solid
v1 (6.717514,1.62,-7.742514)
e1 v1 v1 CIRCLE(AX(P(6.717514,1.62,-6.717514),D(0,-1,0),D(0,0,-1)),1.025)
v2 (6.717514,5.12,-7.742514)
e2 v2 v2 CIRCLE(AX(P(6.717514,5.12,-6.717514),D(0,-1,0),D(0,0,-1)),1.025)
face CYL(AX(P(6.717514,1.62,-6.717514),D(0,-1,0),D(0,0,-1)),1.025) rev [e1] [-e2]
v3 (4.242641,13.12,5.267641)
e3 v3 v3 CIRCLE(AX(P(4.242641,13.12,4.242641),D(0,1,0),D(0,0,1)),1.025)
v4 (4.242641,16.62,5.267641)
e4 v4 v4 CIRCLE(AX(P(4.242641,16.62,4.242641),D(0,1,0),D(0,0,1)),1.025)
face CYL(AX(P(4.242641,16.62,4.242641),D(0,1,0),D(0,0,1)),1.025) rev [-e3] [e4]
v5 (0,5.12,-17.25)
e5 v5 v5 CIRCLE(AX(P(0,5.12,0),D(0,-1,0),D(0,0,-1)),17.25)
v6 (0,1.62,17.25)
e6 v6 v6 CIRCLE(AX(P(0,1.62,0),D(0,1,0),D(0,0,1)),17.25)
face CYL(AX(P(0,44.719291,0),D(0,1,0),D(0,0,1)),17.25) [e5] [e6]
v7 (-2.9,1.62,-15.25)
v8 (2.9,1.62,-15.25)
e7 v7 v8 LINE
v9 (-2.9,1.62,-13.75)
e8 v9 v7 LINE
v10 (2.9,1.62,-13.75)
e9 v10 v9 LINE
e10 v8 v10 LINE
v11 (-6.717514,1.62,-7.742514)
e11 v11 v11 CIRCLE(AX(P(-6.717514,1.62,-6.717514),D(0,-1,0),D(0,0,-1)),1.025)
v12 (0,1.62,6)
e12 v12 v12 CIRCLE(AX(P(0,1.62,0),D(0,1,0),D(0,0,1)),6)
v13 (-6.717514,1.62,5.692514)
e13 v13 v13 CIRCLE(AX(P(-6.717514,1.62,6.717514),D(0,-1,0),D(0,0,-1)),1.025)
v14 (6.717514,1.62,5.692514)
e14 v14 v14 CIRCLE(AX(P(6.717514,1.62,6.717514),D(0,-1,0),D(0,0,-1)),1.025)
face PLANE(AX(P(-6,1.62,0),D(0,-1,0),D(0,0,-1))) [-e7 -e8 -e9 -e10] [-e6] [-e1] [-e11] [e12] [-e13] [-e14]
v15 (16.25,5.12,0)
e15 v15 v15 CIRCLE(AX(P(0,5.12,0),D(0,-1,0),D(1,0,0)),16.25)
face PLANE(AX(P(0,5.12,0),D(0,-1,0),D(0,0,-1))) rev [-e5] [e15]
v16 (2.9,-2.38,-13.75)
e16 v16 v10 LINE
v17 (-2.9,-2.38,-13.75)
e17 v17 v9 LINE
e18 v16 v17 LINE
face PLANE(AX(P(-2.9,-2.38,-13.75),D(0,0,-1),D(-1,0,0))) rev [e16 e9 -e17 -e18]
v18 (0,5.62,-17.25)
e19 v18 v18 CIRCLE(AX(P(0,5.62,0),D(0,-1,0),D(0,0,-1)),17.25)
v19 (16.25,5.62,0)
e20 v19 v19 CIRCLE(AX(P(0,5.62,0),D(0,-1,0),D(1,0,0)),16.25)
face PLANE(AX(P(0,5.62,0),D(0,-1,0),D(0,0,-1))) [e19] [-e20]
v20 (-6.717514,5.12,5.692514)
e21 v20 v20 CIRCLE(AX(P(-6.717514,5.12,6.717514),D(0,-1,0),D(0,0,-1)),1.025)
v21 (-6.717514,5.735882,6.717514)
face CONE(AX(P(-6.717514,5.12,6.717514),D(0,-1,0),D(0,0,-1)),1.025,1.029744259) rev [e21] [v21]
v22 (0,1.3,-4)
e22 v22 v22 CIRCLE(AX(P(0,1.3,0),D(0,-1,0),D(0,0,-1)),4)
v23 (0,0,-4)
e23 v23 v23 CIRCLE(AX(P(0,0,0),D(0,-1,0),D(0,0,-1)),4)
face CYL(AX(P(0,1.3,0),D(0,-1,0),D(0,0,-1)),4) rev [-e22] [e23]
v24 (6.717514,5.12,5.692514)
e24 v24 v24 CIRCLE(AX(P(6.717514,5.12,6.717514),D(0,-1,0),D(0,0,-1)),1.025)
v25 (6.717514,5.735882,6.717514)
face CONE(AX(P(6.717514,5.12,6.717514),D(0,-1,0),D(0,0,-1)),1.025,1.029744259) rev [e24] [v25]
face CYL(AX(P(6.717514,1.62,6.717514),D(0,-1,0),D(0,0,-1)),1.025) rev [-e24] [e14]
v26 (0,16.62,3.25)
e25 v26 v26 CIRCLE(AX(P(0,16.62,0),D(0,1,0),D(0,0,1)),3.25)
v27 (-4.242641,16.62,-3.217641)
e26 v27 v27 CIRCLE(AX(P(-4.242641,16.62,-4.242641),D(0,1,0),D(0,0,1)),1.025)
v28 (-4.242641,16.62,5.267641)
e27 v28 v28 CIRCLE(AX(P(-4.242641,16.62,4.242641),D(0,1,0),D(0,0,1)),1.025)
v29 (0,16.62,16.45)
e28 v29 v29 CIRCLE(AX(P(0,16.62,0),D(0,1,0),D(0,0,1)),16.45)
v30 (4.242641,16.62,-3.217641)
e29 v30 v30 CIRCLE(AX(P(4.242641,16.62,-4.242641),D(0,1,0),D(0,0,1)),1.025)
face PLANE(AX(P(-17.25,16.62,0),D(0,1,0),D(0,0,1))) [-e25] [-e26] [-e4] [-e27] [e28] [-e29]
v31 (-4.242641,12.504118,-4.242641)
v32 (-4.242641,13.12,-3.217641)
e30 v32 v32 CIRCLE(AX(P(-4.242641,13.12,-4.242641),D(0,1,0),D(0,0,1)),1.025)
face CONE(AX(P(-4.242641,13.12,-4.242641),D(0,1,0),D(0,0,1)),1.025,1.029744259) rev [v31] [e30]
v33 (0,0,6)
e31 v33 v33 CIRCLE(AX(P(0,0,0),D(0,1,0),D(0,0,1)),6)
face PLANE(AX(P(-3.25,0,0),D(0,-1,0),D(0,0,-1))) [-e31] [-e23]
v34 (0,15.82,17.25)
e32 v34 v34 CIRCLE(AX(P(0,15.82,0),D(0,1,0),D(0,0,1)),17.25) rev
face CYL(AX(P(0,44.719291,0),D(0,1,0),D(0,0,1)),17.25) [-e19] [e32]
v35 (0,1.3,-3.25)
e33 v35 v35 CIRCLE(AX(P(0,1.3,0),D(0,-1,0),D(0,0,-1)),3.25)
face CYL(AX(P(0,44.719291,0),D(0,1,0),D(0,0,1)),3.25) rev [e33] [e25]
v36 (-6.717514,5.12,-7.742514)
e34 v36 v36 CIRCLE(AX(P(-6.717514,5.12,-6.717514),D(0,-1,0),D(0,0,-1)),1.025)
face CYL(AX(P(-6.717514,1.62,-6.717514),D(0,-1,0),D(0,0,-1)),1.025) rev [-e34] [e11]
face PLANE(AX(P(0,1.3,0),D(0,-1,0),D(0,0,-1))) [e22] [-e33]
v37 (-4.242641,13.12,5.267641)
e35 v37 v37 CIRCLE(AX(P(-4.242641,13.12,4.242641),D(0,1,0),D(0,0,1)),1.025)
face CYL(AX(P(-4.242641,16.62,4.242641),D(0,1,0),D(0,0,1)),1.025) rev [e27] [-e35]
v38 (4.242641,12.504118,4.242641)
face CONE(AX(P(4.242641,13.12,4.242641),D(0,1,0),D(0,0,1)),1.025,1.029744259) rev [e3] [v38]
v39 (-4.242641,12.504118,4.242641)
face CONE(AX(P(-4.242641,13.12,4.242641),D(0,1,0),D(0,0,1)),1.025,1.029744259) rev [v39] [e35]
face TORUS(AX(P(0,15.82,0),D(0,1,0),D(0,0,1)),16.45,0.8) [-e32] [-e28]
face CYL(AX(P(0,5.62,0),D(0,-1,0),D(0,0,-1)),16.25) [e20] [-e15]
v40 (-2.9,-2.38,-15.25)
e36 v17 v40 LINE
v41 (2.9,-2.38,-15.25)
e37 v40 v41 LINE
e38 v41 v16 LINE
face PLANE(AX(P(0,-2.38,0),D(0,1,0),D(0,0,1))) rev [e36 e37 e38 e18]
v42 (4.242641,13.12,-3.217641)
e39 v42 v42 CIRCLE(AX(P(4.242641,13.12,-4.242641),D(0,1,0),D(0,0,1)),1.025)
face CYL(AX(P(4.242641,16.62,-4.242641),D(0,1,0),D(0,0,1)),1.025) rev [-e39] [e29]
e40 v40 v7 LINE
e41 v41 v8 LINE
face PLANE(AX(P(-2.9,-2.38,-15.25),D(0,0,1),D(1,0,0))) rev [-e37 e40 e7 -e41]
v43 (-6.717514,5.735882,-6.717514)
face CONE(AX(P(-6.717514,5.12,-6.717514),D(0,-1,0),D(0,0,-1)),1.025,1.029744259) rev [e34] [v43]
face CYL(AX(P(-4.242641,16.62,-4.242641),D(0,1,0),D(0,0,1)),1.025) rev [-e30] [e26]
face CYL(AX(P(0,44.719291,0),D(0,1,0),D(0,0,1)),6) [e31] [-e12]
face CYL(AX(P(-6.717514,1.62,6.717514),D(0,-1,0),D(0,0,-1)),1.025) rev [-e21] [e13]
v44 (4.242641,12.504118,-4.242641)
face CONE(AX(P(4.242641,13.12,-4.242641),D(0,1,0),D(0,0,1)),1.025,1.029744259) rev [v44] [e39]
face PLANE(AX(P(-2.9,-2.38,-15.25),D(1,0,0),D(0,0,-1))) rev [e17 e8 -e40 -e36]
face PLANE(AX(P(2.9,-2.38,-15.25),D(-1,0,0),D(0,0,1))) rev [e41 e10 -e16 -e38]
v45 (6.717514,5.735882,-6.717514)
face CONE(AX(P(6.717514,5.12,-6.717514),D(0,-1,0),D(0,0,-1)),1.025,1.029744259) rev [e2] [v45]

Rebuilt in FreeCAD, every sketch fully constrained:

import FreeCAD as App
import Part
import Sketcher
from FreeCAD import Vector


def edges_at(feature, points):
    """Names of the edges that pass closest to the given points."""
    edges = feature.Shape.Edges
    near = lambda p: min(range(len(edges)), key=lambda i: edges[i].distToShape(Part.Vertex(*p))[0])
    return sorted({f"Edge{near(p) + 1}" for p in points})


def add_polygon(sketch, points):
    """Adds a closed chain of lines whose ends are joined by coincident constraints."""
    first, n = sketch.GeometryCount, len(points)
    for a, b in zip(points, points[1:] + points[:1]):
        sketch.addGeometry(Part.LineSegment(App.Vector(*a, 0), App.Vector(*b, 0)), False)
    for i in range(n):
        sketch.addConstraint(Sketcher.Constraint("Coincident", first + i, 2, first + (i + 1) % n, 1))

doc = App.newDocument("Part")
body = doc.addObject("PartDesign::Body", "Body")

# Sketch on XY plane
sketch1 = body.newObject("Sketcher::SketchObject", "Sketch")
sketch1.AttachmentSupport = (doc.getObject("XY_Plane"), [""])
sketch1.MapMode = "FlatFace"
add_polygon(sketch1, [(-6, 1.62), (-6, 0), (-3.25, 0), (-3.25, 16.62), (-17.25, 16.62), (-17.25, 1.62)])  # lines 0-5
sketch1.addConstraint([
    Sketcher.Constraint("Vertical", 0),
    Sketcher.Constraint("Horizontal", 1),
    Sketcher.Constraint("Vertical", 2),
    Sketcher.Constraint("Horizontal", 3),
    Sketcher.Constraint("Vertical", 4),
    Sketcher.Constraint("Horizontal", 5),
    Sketcher.Constraint("PointOnObject", 0, 2, -1),
    Sketcher.Constraint("DistanceX", 3, 2, 3, 1, 14.0),
    Sketcher.Constraint("DistanceY", 4, 2, 4, 1, 15.0),
    Sketcher.Constraint("DistanceX", 0, 2, -1, 1, 6.0),
    Sketcher.Constraint("DistanceX", 1, 1, 1, 2, 2.75),
    Sketcher.Constraint("DistanceY", 0, 2, 0, 1, 1.62),
])
revolution = body.newObject("PartDesign::Revolution", "Revolution")
revolution.Profile = sketch1
revolution.ReferenceAxis = (sketch1, ["V_Axis"])
revolution.Angle = 360

# Sketch on XZ plane
sketch2 = body.newObject("Sketcher::SketchObject", "Sketch001")
sketch2.AttachmentSupport = (doc.getObject("XZ_Plane"), [""])
sketch2.MapMode = "FlatFace"
sketch2.AttachmentOffset = App.Placement(Vector(0, 0, -5.12), App.Rotation())
sketch2.addGeometry([
    Part.Circle(Vector(0, 0, 0), Vector(0, 0, 1), 17.25),
    Part.Circle(Vector(0, 0, 0), Vector(0, 0, 1), 16.25),
], False)
sketch2.addConstraint([
    Sketcher.Constraint("Coincident", 0, 3, -1, 1),
    Sketcher.Constraint("Coincident", 1, 3, -1, 1),
    Sketcher.Constraint("Diameter", 0, 34.5),
    Sketcher.Constraint("Diameter", 1, 32.5),
])
pocket1 = body.newObject("PartDesign::Pocket", "Pocket")
pocket1.Profile = sketch2
pocket1.Length = 0.5

# Sketch on XZ plane
sketch3 = body.newObject("Sketcher::SketchObject", "Sketch002")
sketch3.AttachmentSupport = (doc.getObject("XZ_Plane"), [""])
sketch3.MapMode = "FlatFace"
sketch3.AttachmentOffset = App.Placement(Vector(0, 0, -1.62), App.Rotation())
sketch3.addGeometry([
    Part.Circle(Vector(6.717514, -6.717514, 0), Vector(0, 0, 1), 1.025),
    Part.Circle(Vector(6.717514, 6.717514, 0), Vector(0, 0, 1), 1.025),
    Part.Circle(Vector(-6.717514, 6.717514, 0), Vector(0, 0, 1), 1.025),
    Part.Circle(Vector(-6.717514, -6.717514, 0), Vector(0, 0, 1), 1.025),
], False)
sketch3.addConstraint([
    Sketcher.Constraint("Equal", 0, 1),
    Sketcher.Constraint("Equal", 1, 2),
    Sketcher.Constraint("Equal", 2, 3),
    Sketcher.Constraint("Symmetric", 0, 3, 2, 3, -1, 1),
    Sketcher.Constraint("Symmetric", 1, 3, 3, 3, -1, 1),
    Sketcher.Constraint("Symmetric", 1, 3, 2, 3, -2),
    Sketcher.Constraint("Diameter", 0, 2.05),
    Sketcher.Constraint("DistanceY", 0, 3, 1, 3, 13.435029),
    Sketcher.Constraint("DistanceX", 2, 3, 1, 3, 13.435029),
])
doc.recompute()
hole = body.newObject("PartDesign::Hole", "Hole")
hole.Profile = sketch3
hole.ThreadType = "None"
hole.Diameter = 2.05
hole.DepthType = "Dimension"
hole.Depth = 3.5
hole.DrillPoint = "Angled"
hole.DrillPointAngle = 118

# Sketch on XZ plane
sketch4 = body.newObject("Sketcher::SketchObject", "Sketch003")
sketch4.AttachmentSupport = (doc.getObject("XZ_Plane"), [""])
sketch4.MapMode = "FlatFace"
sketch4.AttachmentOffset = App.Placement(Vector(0, 0, -1.62), App.Rotation())
add_polygon(sketch4, [(-2.9, -13.75), (-2.9, -15.25), (2.9, -15.25), (2.9, -13.75)])  # lines 0-3
sketch4.addConstraint([
    Sketcher.Constraint("Vertical", 0),
    Sketcher.Constraint("Horizontal", 1),
    Sketcher.Constraint("Vertical", 2),
    Sketcher.Constraint("Horizontal", 3),
    Sketcher.Constraint("DistanceX", 1, 1, 1, 2, 5.8),
    Sketcher.Constraint("DistanceY", 0, 2, 0, 1, 1.5),
    Sketcher.Constraint("DistanceX", 0, 2, -1, 1, 2.9),
    Sketcher.Constraint("DistanceY", 0, 2, -1, 1, 15.25),
])
pad1 = body.newObject("PartDesign::Pad", "Pad")
pad1.Profile = sketch4
pad1.Length = 4

# Sketch on XZ plane
sketch5 = body.newObject("Sketcher::SketchObject", "Sketch004")
sketch5.AttachmentSupport = (doc.getObject("XZ_Plane"), [""])
sketch5.MapMode = "FlatFace"
sketch5.AttachmentOffset = App.Placement(Vector(0, 0, -16.62), App.Rotation())
sketch5.addGeometry([
    Part.Circle(Vector(-4.242641, -4.242641, 0), Vector(0, 0, 1), 1.025),
    Part.Circle(Vector(4.242641, -4.242641, 0), Vector(0, 0, 1), 1.025),
    Part.Circle(Vector(4.242641, 4.242641, 0), Vector(0, 0, 1), 1.025),
    Part.Circle(Vector(-4.242641, 4.242641, 0), Vector(0, 0, 1), 1.025),
], False)
sketch5.addConstraint([
    Sketcher.Constraint("Equal", 0, 1),
    Sketcher.Constraint("Equal", 1, 2),
    Sketcher.Constraint("Equal", 2, 3),
    Sketcher.Constraint("Symmetric", 0, 3, 2, 3, -1, 1),
    Sketcher.Constraint("Symmetric", 1, 3, 3, 3, -1, 1),
    Sketcher.Constraint("Symmetric", 0, 3, 1, 3, -2),
    Sketcher.Constraint("Diameter", 0, 2.05),
    Sketcher.Constraint("DistanceX", 0, 3, -1, 1, 4.242641),
    Sketcher.Constraint("DistanceY", 0, 3, -1, 1, 4.242641),
])
doc.recompute()
hole2 = body.newObject("PartDesign::Hole", "Hole001")
hole2.Profile = sketch5
hole2.ThreadType = "None"
hole2.Diameter = 2.05
hole2.DepthType = "Dimension"
hole2.Depth = 3.5
hole2.DrillPoint = "Angled"
hole2.DrillPointAngle = 118
hole2.Reversed = True
doc.recompute()

fillet = body.newObject("PartDesign::Fillet", "Fillet")
fillet.Base = (hole2, edges_at(hole2, [(17.25, 16.62, 0)]))
fillet.Radius = 0.8

# Sketch on XZ plane
sketch6 = body.newObject("Sketcher::SketchObject", "Sketch005")
sketch6.AttachmentSupport = (doc.getObject("XZ_Plane"), [""])
sketch6.MapMode = "FlatFace"
sketch6.addGeometry(Part.Circle(Vector(0, 0, 0), Vector(0, 0, 1), 4), False)
sketch6.addConstraint([
    Sketcher.Constraint("Coincident", 0, 3, -1, 1),
    Sketcher.Constraint("Diameter", 0, 8.0),
])
pocket2 = body.newObject("PartDesign::Pocket", "Pocket001")
pocket2.Profile = sketch6
pocket2.Length = 1.3

doc.recompute()
